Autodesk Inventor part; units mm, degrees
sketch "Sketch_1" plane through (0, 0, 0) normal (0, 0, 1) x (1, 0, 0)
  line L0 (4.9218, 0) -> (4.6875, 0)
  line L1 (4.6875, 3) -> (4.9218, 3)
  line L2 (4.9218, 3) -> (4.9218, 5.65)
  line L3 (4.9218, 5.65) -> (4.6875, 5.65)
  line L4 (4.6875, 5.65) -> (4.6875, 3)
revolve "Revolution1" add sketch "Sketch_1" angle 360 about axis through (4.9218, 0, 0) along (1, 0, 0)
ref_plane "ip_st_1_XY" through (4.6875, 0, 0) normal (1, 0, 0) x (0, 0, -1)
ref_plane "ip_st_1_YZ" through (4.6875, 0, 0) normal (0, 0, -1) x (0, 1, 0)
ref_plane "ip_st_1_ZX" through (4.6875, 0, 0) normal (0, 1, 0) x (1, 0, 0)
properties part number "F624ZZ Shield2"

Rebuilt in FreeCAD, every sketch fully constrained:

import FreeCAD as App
import Part
import Sketcher

V = App.Vector
Q = App.Units.Quantity

doc = App.newDocument("Part")
params = doc.addObject("Spreadsheet::Sheet", "Params")
for row, (alias, value) in enumerate([
    ("sketch1_height", "2.65 mm"),
    ("revolution_angle", "360 deg"),
], start=1):
    params.set(f"A{row}", alias)
    params.set(f"B{row}", "=" + value)
    params.setAlias(f"B{row}", alias)

body = doc.addObject("PartDesign::Body", "Body")

sketch1 = body.newObject("Sketcher::SketchObject", "Sketch")
sketch1.AttachmentSupport = (doc.getObject("XY_Plane"), [""])
sketch1.MapMode = "FlatFace"
sketch1.addGeometry(Part.LineSegment(V(4.69, 5.65, 0), V(4.69, 3, 0)), False)
sketch1.addGeometry(Part.LineSegment(V(4.69, 3, 0), V(4.92, 3, 0)), False)
sketch1.addGeometry(Part.LineSegment(V(4.92, 3, 0), V(4.92, 5.65, 0)), False)
sketch1.addGeometry(Part.LineSegment(V(4.92, 5.65, 0), V(4.69, 5.65, 0)), False)
sketch1.addConstraint(Sketcher.Constraint("Coincident", 0, 2, 1, 1))
sketch1.addConstraint(Sketcher.Constraint("Coincident", 1, 2, 2, 1))
sketch1.addConstraint(Sketcher.Constraint("Coincident", 2, 2, 3, 1))
sketch1.addConstraint(Sketcher.Constraint("Coincident", 3, 2, 0, 1))
sketch1.addConstraint(Sketcher.Constraint("Vertical", 0))
sketch1.addConstraint(Sketcher.Constraint("Horizontal", 1))
sketch1.addConstraint(Sketcher.Constraint("Vertical", 2))
sketch1.addConstraint(Sketcher.Constraint("Horizontal", 3))
sketch1.addConstraint(Sketcher.Constraint("DistanceY", -1, 1, 0, 2, Q("3 mm")))
sketch1.addConstraint(Sketcher.Constraint("DistanceY", 0, 2, 0, 1, Q("2.65 mm")))
sketch1.addConstraint(Sketcher.Constraint("DistanceX", 1, 1, 1, 2, Q("0.2343 mm")))
sketch1.addConstraint(Sketcher.Constraint("DistanceX", -1, 1, 0, 2, Q("4.6875 mm")))
sketch1.setExpression("Constraints[9]", "Params.sketch1_height")
revolution = body.newObject("PartDesign::Revolution", "Revolution")
revolution.Profile = sketch1
revolution.ReferenceAxis = (sketch1, ["H_Axis"])
revolution.setExpression("Angle", "Params.revolution_angle")

doc.recompute()
